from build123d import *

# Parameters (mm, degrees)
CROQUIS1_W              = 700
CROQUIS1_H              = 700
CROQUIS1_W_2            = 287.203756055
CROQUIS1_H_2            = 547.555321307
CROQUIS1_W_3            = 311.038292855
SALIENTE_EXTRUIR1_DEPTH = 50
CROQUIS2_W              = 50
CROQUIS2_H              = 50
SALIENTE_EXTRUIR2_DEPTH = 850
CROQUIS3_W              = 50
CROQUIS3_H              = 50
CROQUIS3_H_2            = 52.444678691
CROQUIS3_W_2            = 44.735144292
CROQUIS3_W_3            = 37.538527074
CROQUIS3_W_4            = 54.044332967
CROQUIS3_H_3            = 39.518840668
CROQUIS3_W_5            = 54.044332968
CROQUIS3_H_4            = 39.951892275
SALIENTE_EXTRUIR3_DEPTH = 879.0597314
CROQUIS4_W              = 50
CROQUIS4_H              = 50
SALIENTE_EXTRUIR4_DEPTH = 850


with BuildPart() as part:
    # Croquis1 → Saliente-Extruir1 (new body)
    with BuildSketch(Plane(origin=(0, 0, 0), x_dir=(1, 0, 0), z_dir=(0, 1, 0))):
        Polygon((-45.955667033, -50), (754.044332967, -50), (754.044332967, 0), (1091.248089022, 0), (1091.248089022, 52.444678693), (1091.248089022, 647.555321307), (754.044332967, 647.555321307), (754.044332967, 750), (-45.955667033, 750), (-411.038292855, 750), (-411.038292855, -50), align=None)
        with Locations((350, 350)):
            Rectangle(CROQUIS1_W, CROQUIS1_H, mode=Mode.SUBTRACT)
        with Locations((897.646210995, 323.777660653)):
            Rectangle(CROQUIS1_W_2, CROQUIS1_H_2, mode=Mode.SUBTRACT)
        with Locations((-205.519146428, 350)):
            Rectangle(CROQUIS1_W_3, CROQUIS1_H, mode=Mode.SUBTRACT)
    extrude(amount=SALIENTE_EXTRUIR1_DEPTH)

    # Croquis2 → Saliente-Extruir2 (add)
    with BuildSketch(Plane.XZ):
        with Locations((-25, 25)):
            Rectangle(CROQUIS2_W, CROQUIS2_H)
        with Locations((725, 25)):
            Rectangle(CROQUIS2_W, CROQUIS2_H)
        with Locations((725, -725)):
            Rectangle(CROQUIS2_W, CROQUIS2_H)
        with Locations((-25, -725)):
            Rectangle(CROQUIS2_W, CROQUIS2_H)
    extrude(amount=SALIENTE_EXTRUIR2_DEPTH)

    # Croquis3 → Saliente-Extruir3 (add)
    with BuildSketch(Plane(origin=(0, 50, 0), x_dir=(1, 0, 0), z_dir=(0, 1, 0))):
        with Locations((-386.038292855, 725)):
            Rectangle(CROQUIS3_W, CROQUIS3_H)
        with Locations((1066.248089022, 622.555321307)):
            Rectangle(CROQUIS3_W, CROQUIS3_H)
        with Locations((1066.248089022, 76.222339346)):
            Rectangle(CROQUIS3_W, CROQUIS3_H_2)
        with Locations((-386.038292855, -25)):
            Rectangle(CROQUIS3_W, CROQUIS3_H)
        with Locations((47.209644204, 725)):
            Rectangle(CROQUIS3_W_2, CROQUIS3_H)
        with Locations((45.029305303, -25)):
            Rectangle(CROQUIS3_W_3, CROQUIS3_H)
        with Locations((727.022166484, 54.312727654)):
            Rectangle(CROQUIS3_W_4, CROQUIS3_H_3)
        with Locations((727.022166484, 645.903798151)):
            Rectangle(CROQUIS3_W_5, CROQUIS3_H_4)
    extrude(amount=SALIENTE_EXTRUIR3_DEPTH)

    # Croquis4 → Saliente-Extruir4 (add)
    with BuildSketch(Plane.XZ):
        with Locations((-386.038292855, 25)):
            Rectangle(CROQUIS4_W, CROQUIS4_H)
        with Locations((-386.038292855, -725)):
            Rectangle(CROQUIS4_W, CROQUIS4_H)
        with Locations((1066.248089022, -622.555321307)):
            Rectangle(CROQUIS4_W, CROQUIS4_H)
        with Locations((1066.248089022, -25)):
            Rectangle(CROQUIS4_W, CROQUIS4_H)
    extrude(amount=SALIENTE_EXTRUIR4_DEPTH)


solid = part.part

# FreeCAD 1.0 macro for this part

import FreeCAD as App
import Part
import Sketcher
from FreeCAD import Vector
Q = App.Units.Quantity

doc = App.newDocument("Part")
body = doc.addObject("PartDesign::Body", "Body")

# Sketch on XZ plane
sketch1 = doc.addObject("Sketcher::SketchObject", "Sketch")
body.addObject(sketch1)
sketch1.AttachmentSupport = (doc.XZ_Plane, [""])
sketch1.MapMode = "FlatFace"
sketch1.addGeometry([
    Part.LineSegment(Vector(754, 50, 0), Vector(754, 0, 0)),  # 0
    Part.LineSegment(Vector(754, 0, 0), Vector(1091, 0, 0)),  # 1
    Part.LineSegment(Vector(1091, 0, 0), Vector(1091, -648, 0)),  # 2
    Part.LineSegment(Vector(1091, -648, 0), Vector(754, -648, 0)),  # 3
    Part.LineSegment(Vector(754, -648, 0), Vector(754, -750, 0)),  # 4
    Part.LineSegment(Vector(754, -750, 0), Vector(-411, -750, 0)),  # 5
    Part.LineSegment(Vector(-411, -750, 0), Vector(-411, 50, 0)),  # 6
    Part.LineSegment(Vector(-411, 50, 0), Vector(754, 50, 0)),  # 7
    Part.LineSegment(Vector(1041, -50, 0), Vector(754, -50, 0)),  # 8
    Part.LineSegment(Vector(754, -50, 0), Vector(754, -598, 0)),  # 9
    Part.LineSegment(Vector(754, -598, 0), Vector(1041, -598, 0)),  # 10
    Part.LineSegment(Vector(1041, -598, 0), Vector(1041, -50, 0)),  # 11
    Part.LineSegment(Vector(-50, 0, 0), Vector(-361, 0, 0)),  # 12
    Part.LineSegment(Vector(-361, 0, 0), Vector(-361, -700, 0)),  # 13
    Part.LineSegment(Vector(-361, -700, 0), Vector(-50, -700, 0)),  # 14
    Part.LineSegment(Vector(-50, -700, 0), Vector(-50, 0, 0)),  # 15
    Part.LineSegment(Vector(700, 0, 0), Vector(0, 0, 0)),  # 16
    Part.LineSegment(Vector(0, 0, 0), Vector(0, -700, 0)),  # 17
    Part.LineSegment(Vector(0, -700, 0), Vector(700, -700, 0)),  # 18
    Part.LineSegment(Vector(700, -700, 0), Vector(700, 0, 0)),  # 19
], False)
sketch1.addConstraint([
    Sketcher.Constraint("Coincident", 0, 2, 1, 1),
    Sketcher.Constraint("Coincident", 1, 2, 2, 1),
    Sketcher.Constraint("Coincident", 2, 2, 3, 1),
    Sketcher.Constraint("Coincident", 3, 2, 4, 1),
    Sketcher.Constraint("Coincident", 4, 2, 5, 1),
    Sketcher.Constraint("Coincident", 5, 2, 6, 1),
    Sketcher.Constraint("Coincident", 6, 2, 7, 1),
    Sketcher.Constraint("Coincident", 7, 2, 0, 1),
    Sketcher.Constraint("Coincident", 8, 2, 9, 1),
    Sketcher.Constraint("Coincident", 9, 2, 10, 1),
    Sketcher.Constraint("Coincident", 10, 2, 11, 1),
    Sketcher.Constraint("Coincident", 11, 2, 8, 1),
    Sketcher.Constraint("Coincident", 12, 2, 13, 1),
    Sketcher.Constraint("Coincident", 13, 2, 14, 1),
    Sketcher.Constraint("Coincident", 14, 2, 15, 1),
    Sketcher.Constraint("Coincident", 15, 2, 12, 1),
    Sketcher.Constraint("Coincident", 16, 2, 17, 1),
    Sketcher.Constraint("Coincident", 17, 2, 18, 1),
    Sketcher.Constraint("Coincident", 18, 2, 19, 1),
    Sketcher.Constraint("Coincident", 19, 2, 16, 1),
    Sketcher.Constraint("Vertical", 0),
    Sketcher.Constraint("Horizontal", 1),
    Sketcher.Constraint("Vertical", 2),
    Sketcher.Constraint("Horizontal", 3),
    Sketcher.Constraint("Vertical", 4),
    Sketcher.Constraint("Horizontal", 5),
    Sketcher.Constraint("Vertical", 6),
    Sketcher.Constraint("Horizontal", 7),
    Sketcher.Constraint("Horizontal", 8),
    Sketcher.Constraint("Vertical", 9),
    Sketcher.Constraint("Horizontal", 10),
    Sketcher.Constraint("Vertical", 11),
    Sketcher.Constraint("Horizontal", 12),
    Sketcher.Constraint("Vertical", 13),
    Sketcher.Constraint("Horizontal", 14),
    Sketcher.Constraint("Vertical", 15),
    Sketcher.Constraint("Horizontal", 16),
    Sketcher.Constraint("Vertical", 17),
    Sketcher.Constraint("Horizontal", 18),
    Sketcher.Constraint("Vertical", 19),
    Sketcher.Constraint("Coincident", 16, 2, -1, 1),
    Sketcher.Constraint("Symmetric", 7, 2, 8, 2, -1),
    Sketcher.Constraint("PointOnObject", 0, 2, -1),
    Sketcher.Constraint("PointOnObject", 12, 2, -1),
    Sketcher.Constraint("Horizontal", 14, 2, 17, 2),
    Sketcher.Constraint("Vertical", 0, 2, 3, 2),
    Sketcher.Constraint("Equal", 18, 13),
    Sketcher.Constraint("DistanceX", 16, 2, 16, 1, Q("700 mm")),
    Sketcher.Constraint("DistanceY", 0, 2, 0, 1, Q("50 mm")),
    Sketcher.Constraint("DistanceY", 6, 1, 6, 2, Q("800 mm")),
    Sketcher.Constraint("DistanceX", 14, 2, -1, 1, Q("50 mm")),
    Sketcher.Constraint("DistanceY", 3, 2, 9, 2, Q("50 mm")),
    Sketcher.Constraint("DistanceX", 10, 2, 2, 2, Q("50 mm")),
    Sketcher.Constraint("DistanceX", 6, 2, 12, 2, Q("50 mm")),
    Sketcher.Constraint("DistanceY", 2, 2, 2, 1, Q("647.555321 mm")),
    Sketcher.Constraint("DistanceX", 1, 1, 1, 2, Q("337.203756 mm")),
    Sketcher.Constraint("DistanceX", 5, 2, 5, 1, Q("1165.082626 mm")),
    Sketcher.Constraint("DistanceX", 12, 2, 12, 1, Q("311.038293 mm")),
])
pad1 = doc.addObject("PartDesign::Pad", "Pad")
body.addObject(pad1)
pad1.Profile = sketch1
pad1.Length = 50
pad1.Reversed = True

# Sketch on XZ plane
sketch2 = doc.addObject("Sketcher::SketchObject", "Sketch001")
body.addObject(sketch2)
sketch2.AttachmentSupport = (doc.XZ_Plane, [""])
sketch2.MapMode = "FlatFace"
sketch2.addGeometry([
    Part.LineSegment(Vector(-50, 50, 0), Vector(-50, 0, 0)),  # 0
    Part.LineSegment(Vector(-50, 0, 0), Vector(0, 0, 0)),  # 1
    Part.LineSegment(Vector(0, 0, 0), Vector(0, 50, 0)),  # 2
    Part.LineSegment(Vector(0, 50, 0), Vector(-50, 50, 0)),  # 3
    Part.LineSegment(Vector(700, 50, 0), Vector(700, 0, 0)),  # 4
    Part.LineSegment(Vector(700, 0, 0), Vector(750, 0, 0)),  # 5
    Part.LineSegment(Vector(750, 0, 0), Vector(750, 50, 0)),  # 6
    Part.LineSegment(Vector(750, 50, 0), Vector(700, 50, 0)),  # 7
    Part.LineSegment(Vector(700, -700, 0), Vector(700, -750, 0)),  # 8
    Part.LineSegment(Vector(700, -750, 0), Vector(750, -750, 0)),  # 9
    Part.LineSegment(Vector(750, -750, 0), Vector(750, -700, 0)),  # 10
    Part.LineSegment(Vector(750, -700, 0), Vector(700, -700, 0)),  # 11
    Part.LineSegment(Vector(-50, -700, 0), Vector(-50, -750, 0)),  # 12
    Part.LineSegment(Vector(-50, -750, 0), Vector(0, -750, 0)),  # 13
    Part.LineSegment(Vector(0, -750, 0), Vector(0, -700, 0)),  # 14
    Part.LineSegment(Vector(0, -700, 0), Vector(-50, -700, 0)),  # 15
], False)
sketch2.addConstraint([
    Sketcher.Constraint("Coincident", 0, 2, 1, 1),
    Sketcher.Constraint("Coincident", 1, 2, 2, 1),
    Sketcher.Constraint("Coincident", 2, 2, 3, 1),
    Sketcher.Constraint("Coincident", 3, 2, 0, 1),
    Sketcher.Constraint("Coincident", 4, 2, 5, 1),
    Sketcher.Constraint("Coincident", 5, 2, 6, 1),
    Sketcher.Constraint("Coincident", 6, 2, 7, 1),
    Sketcher.Constraint("Coincident", 7, 2, 4, 1),
    Sketcher.Constraint("Coincident", 8, 2, 9, 1),
    Sketcher.Constraint("Coincident", 9, 2, 10, 1),
    Sketcher.Constraint("Coincident", 10, 2, 11, 1),
    Sketcher.Constraint("Coincident", 11, 2, 8, 1),
    Sketcher.Constraint("Coincident", 12, 2, 13, 1),
    Sketcher.Constraint("Coincident", 13, 2, 14, 1),
    Sketcher.Constraint("Coincident", 14, 2, 15, 1),
    Sketcher.Constraint("Coincident", 15, 2, 12, 1),
    Sketcher.Constraint("Vertical", 0),
    Sketcher.Constraint("Horizontal", 1),
    Sketcher.Constraint("Vertical", 2),
    Sketcher.Constraint("Horizontal", 3),
    Sketcher.Constraint("Vertical", 4),
    Sketcher.Constraint("Horizontal", 5),
    Sketcher.Constraint("Vertical", 6),
    Sketcher.Constraint("Horizontal", 7),
    Sketcher.Constraint("Vertical", 8),
    Sketcher.Constraint("Horizontal", 9),
    Sketcher.Constraint("Vertical", 10),
    Sketcher.Constraint("Horizontal", 11),
    Sketcher.Constraint("Vertical", 12),
    Sketcher.Constraint("Horizontal", 13),
    Sketcher.Constraint("Vertical", 14),
    Sketcher.Constraint("Horizontal", 15),
    Sketcher.Constraint("Coincident", 1, 2, -1, 1),
    Sketcher.Constraint("PointOnObject", 4, 2, -1),
    Sketcher.Constraint("PointOnObject", 13, 2, -2),
    Sketcher.Constraint("Horizontal", 3, 2, 6, 2),
    Sketcher.Constraint("Horizontal", 9, 2, 12, 2),
    Sketcher.Constraint("Horizontal", 11, 2, 14, 2),
    Sketcher.Constraint("Vertical", 7, 2, 8, 2),
    Sketcher.Constraint("Vertical", 6, 2, 9, 2),
    Sketcher.Constraint("Vertical", 3, 2, 12, 2),
    Sketcher.Constraint("Equal", 3, 5),
    Sketcher.Constraint("Equal", 15, 0),
    Sketcher.Constraint("Equal", 6, 8),
    Sketcher.Constraint("DistanceX", 1, 1, 1, 2, Q("50 mm")),
    Sketcher.Constraint("DistanceX", -1, 1, 4, 2, Q("700 mm")),
    Sketcher.Constraint("DistanceY", 8, 2, -1, 1, Q("750 mm")),
])
pad2 = doc.addObject("PartDesign::Pad", "Pad001")
body.addObject(pad2)
pad2.Profile = sketch2
pad2.Length = 850

# Sketch on XZ plane
sketch3 = doc.addObject("Sketcher::SketchObject", "Sketch002")
body.addObject(sketch3)
sketch3.AttachmentSupport = (doc.XZ_Plane, [""])
sketch3.MapMode = "FlatFace"
sketch3.AttachmentOffset = App.Placement(Vector(0, 0, -50), App.Rotation())
sketch3.addGeometry([
    Part.LineSegment(Vector(-411, -750, 0), Vector(-411, -700, 0)),  # 0
    Part.LineSegment(Vector(-411, -700, 0), Vector(-361, -700, 0)),  # 1
    Part.LineSegment(Vector(-361, -700, 0), Vector(-361, -750, 0)),  # 2
    Part.LineSegment(Vector(-361, -750, 0), Vector(-411, -750, 0)),  # 3
    Part.LineSegment(Vector(1041, -648, 0), Vector(1041, -598, 0)),  # 4
    Part.LineSegment(Vector(1041, -598, 0), Vector(1091, -598, 0)),  # 5
    Part.LineSegment(Vector(1091, -598, 0), Vector(1091, -648, 0)),  # 6
    Part.LineSegment(Vector(1091, -648, 0), Vector(1041, -648, 0)),  # 7
    Part.LineSegment(Vector(1041, -102, 0), Vector(1041, -50, 0)),  # 8
    Part.LineSegment(Vector(1041, -50, 0), Vector(1091, -50, 0)),  # 9
    Part.LineSegment(Vector(1091, -50, 0), Vector(1091, -102, 0)),  # 10
    Part.LineSegment(Vector(1091, -102, 0), Vector(1041, -102, 0)),  # 11
    Part.LineSegment(Vector(-411, 0, 0), Vector(-411, 50, 0)),  # 12
    Part.LineSegment(Vector(-411, 50, 0), Vector(-361, 50, 0)),  # 13
    Part.LineSegment(Vector(-361, 50, 0), Vector(-361, 0, 0)),  # 14
    Part.LineSegment(Vector(-361, 0, 0), Vector(-411, 0, 0)),  # 15
    Part.LineSegment(Vector(25, -750, 0), Vector(25, -700, 0)),  # 16
    Part.LineSegment(Vector(25, -700, 0), Vector(70, -700, 0)),  # 17
    Part.LineSegment(Vector(70, -700, 0), Vector(70, -750, 0)),  # 18
    Part.LineSegment(Vector(70, -750, 0), Vector(25, -750, 0)),  # 19
    Part.LineSegment(Vector(26, 0, 0), Vector(26, 50, 0)),  # 20
    Part.LineSegment(Vector(26, 50, 0), Vector(64, 50, 0)),  # 21
    Part.LineSegment(Vector(64, 50, 0), Vector(64, 0, 0)),  # 22
    Part.LineSegment(Vector(64, 0, 0), Vector(26, 0, 0)),  # 23
    Part.LineSegment(Vector(700, -74, 0), Vector(700, -35, 0)),  # 24
    Part.LineSegment(Vector(700, -35, 0), Vector(754, -35, 0)),  # 25
    Part.LineSegment(Vector(754, -35, 0), Vector(754, -74, 0)),  # 26
    Part.LineSegment(Vector(754, -74, 0), Vector(700, -74, 0)),  # 27
    Part.LineSegment(Vector(700, -666, 0), Vector(700, -626, 0)),  # 28
    Part.LineSegment(Vector(700, -626, 0), Vector(754, -626, 0)),  # 29
    Part.LineSegment(Vector(754, -626, 0), Vector(754, -666, 0)),  # 30
    Part.LineSegment(Vector(754, -666, 0), Vector(700, -666, 0)),  # 31
], False)
sketch3.addConstraint([
    Sketcher.Constraint("Coincident", 0, 2, 1, 1),
    Sketcher.Constraint("Coincident", 1, 2, 2, 1),
    Sketcher.Constraint("Coincident", 2, 2, 3, 1),
    Sketcher.Constraint("Coincident", 3, 2, 0, 1),
    Sketcher.Constraint("Coincident", 4, 2, 5, 1),
    Sketcher.Constraint("Coincident", 5, 2, 6, 1),
    Sketcher.Constraint("Coincident", 6, 2, 7, 1),
    Sketcher.Constraint("Coincident", 7, 2, 4, 1),
    Sketcher.Constraint("Coincident", 8, 2, 9, 1),
    Sketcher.Constraint("Coincident", 9, 2, 10, 1),
    Sketcher.Constraint("Coincident", 10, 2, 11, 1),
    Sketcher.Constraint("Coincident", 11, 2, 8, 1),
    Sketcher.Constraint("Coincident", 12, 2, 13, 1),
    Sketcher.Constraint("Coincident", 13, 2, 14, 1),
    Sketcher.Constraint("Coincident", 14, 2, 15, 1),
    Sketcher.Constraint("Coincident", 15, 2, 12, 1),
    Sketcher.Constraint("Coincident", 16, 2, 17, 1),
    Sketcher.Constraint("Coincident", 17, 2, 18, 1),
    Sketcher.Constraint("Coincident", 18, 2, 19, 1),
    Sketcher.Constraint("Coincident", 19, 2, 16, 1),
    Sketcher.Constraint("Coincident", 20, 2, 21, 1),
    Sketcher.Constraint("Coincident", 21, 2, 22, 1),
    Sketcher.Constraint("Coincident", 22, 2, 23, 1),
    Sketcher.Constraint("Coincident", 23, 2, 20, 1),
    Sketcher.Constraint("Coincident", 24, 2, 25, 1),
    Sketcher.Constraint("Coincident", 25, 2, 26, 1),
    Sketcher.Constraint("Coincident", 26, 2, 27, 1),
    Sketcher.Constraint("Coincident", 27, 2, 24, 1),
    Sketcher.Constraint("Coincident", 28, 2, 29, 1),
    Sketcher.Constraint("Coincident", 29, 2, 30, 1),
    Sketcher.Constraint("Coincident", 30, 2, 31, 1),
    Sketcher.Constraint("Coincident", 31, 2, 28, 1),
    Sketcher.Constraint("Vertical", 0),
    Sketcher.Constraint("Horizontal", 1),
    Sketcher.Constraint("Vertical", 2),
    Sketcher.Constraint("Horizontal", 3),
    Sketcher.Constraint("Vertical", 4),
    Sketcher.Constraint("Horizontal", 5),
    Sketcher.Constraint("Vertical", 6),
    Sketcher.Constraint("Horizontal", 7),
    Sketcher.Constraint("Vertical", 8),
    Sketcher.Constraint("Horizontal", 9),
    Sketcher.Constraint("Vertical", 10),
    Sketcher.Constraint("Horizontal", 11),
    Sketcher.Constraint("Vertical", 12),
    Sketcher.Constraint("Horizontal", 13),
    Sketcher.Constraint("Vertical", 14),
    Sketcher.Constraint("Horizontal", 15),
    Sketcher.Constraint("Vertical", 16),
    Sketcher.Constraint("Horizontal", 17),
    Sketcher.Constraint("Vertical", 18),
    Sketcher.Constraint("Horizontal", 19),
    Sketcher.Constraint("Vertical", 20),
    Sketcher.Constraint("Horizontal", 21),
    Sketcher.Constraint("Vertical", 22),
    Sketcher.Constraint("Horizontal", 23),
    Sketcher.Constraint("Vertical", 24),
    Sketcher.Constraint("Horizontal", 25),
    Sketcher.Constraint("Vertical", 26),
    Sketcher.Constraint("Horizontal", 27),
    Sketcher.Constraint("Vertical", 28),
    Sketcher.Constraint("Horizontal", 29),
    Sketcher.Constraint("Vertical", 30),
    Sketcher.Constraint("Horizontal", 31),
    Sketcher.Constraint("PointOnObject", 14, 2, -1),
    Sketcher.Constraint("PointOnObject", 22, 2, -1),
    Sketcher.Constraint("Horizontal", 1, 2, 16, 2),
    Sketcher.Constraint("Horizontal", 3, 2, 18, 2),
    Sketcher.Constraint("Horizontal", 13, 2, 20, 2),
    Sketcher.Constraint("Vertical", 7, 2, 8, 2),
    Sketcher.Constraint("Vertical", 6, 2, 9, 2),
    Sketcher.Constraint("Vertical", 3, 2, 12, 2),
    Sketcher.Constraint("Vertical", 2, 2, 13, 2),
    Sketcher.Constraint("Vertical", 27, 2, 28, 2),
    Sketcher.Constraint("Vertical", 26, 2, 29, 2),
    Sketcher.Constraint("Equal", 3, 5),
    Sketcher.Constraint("Equal", 15, 0),
    Sketcher.Constraint("Equal", 2, 4),
    Sketcher.Constraint("Equal", 6, 12),
    Sketcher.Constraint("DistanceX", 1, 1, 1, 2, Q("50 mm")),
    Sketcher.Constraint("DistanceY", 0, 2, -1, 1, Q("700 mm")),
    Sketcher.Constraint("DistanceY", 8, 2, -1, 1, Q("50 mm")),
    Sketcher.Constraint("DistanceX", -1, 1, 24, 2, Q("700 mm")),
    Sketcher.Constraint("DistanceY", 8, 1, 8, 2, Q("52.444679 mm")),
    Sketcher.Constraint("DistanceY", 24, 1, 24, 2, Q("39.518841 mm")),
    Sketcher.Constraint("DistanceX", 17, 1, 17, 2, Q("44.735144 mm")),
    Sketcher.Constraint("DistanceX", 21, 1, 21, 2, Q("37.538527 mm")),
    Sketcher.Constraint("DistanceX", 25, 1, 25, 2, Q("54.044333 mm")),
    Sketcher.Constraint("DistanceY", 28, 1, 28, 2, Q("39.951892 mm")),
    Sketcher.Constraint("DistanceX", -1, 1, 4, 2, Q("1041.248089 mm")),
    Sketcher.Constraint("DistanceY", 4, 2, -1, 1, Q("597.555321 mm")),
    Sketcher.Constraint("DistanceX", -1, 1, 20, 2, Q("26.260042 mm")),
    Sketcher.Constraint("DistanceX", 1, 2, 4, 2, Q("1402.286382 mm")),
    Sketcher.Constraint("DistanceX", 1, 2, 17, 2, Q("430.615509 mm")),
    Sketcher.Constraint("DistanceY", 11, 2, 24, 2, Q("67.891371 mm")),
    Sketcher.Constraint("DistanceY", 7, 2, 28, 2, Q("21.627469 mm")),
])
pad3 = doc.addObject("PartDesign::Pad", "Pad002")
body.addObject(pad3)
pad3.Profile = sketch3
pad3.Length = 879.059731
pad3.Reversed = True

# Sketch on XZ plane
sketch4 = doc.addObject("Sketcher::SketchObject", "Sketch003")
body.addObject(sketch4)
sketch4.AttachmentSupport = (doc.XZ_Plane, [""])
sketch4.MapMode = "FlatFace"
sketch4.addGeometry([
    Part.LineSegment(Vector(-411, 50, 0), Vector(-411, 0, 0)),  # 0
    Part.LineSegment(Vector(-411, 0, 0), Vector(-361, 0, 0)),  # 1
    Part.LineSegment(Vector(-361, 0, 0), Vector(-361, 50, 0)),  # 2
    Part.LineSegment(Vector(-361, 50, 0), Vector(-411, 50, 0)),  # 3
    Part.LineSegment(Vector(-411, -700, 0), Vector(-411, -750, 0)),  # 4
    Part.LineSegment(Vector(-411, -750, 0), Vector(-361, -750, 0)),  # 5
    Part.LineSegment(Vector(-361, -750, 0), Vector(-361, -700, 0)),  # 6
    Part.LineSegment(Vector(-361, -700, 0), Vector(-411, -700, 0)),  # 7
    Part.LineSegment(Vector(1041, -598, 0), Vector(1041, -648, 0)),  # 8
    Part.LineSegment(Vector(1041, -648, 0), Vector(1091, -648, 0)),  # 9
    Part.LineSegment(Vector(1091, -648, 0), Vector(1091, -598, 0)),  # 10
    Part.LineSegment(Vector(1091, -598, 0), Vector(1041, -598, 0)),  # 11
    Part.LineSegment(Vector(1041, 0, 0), Vector(1041, -50, 0)),  # 12
    Part.LineSegment(Vector(1041, -50, 0), Vector(1091, -50, 0)),  # 13
    Part.LineSegment(Vector(1091, -50, 0), Vector(1091, 0, 0)),  # 14
    Part.LineSegment(Vector(1091, 0, 0), Vector(1041, 0, 0)),  # 15
], False)
sketch4.addConstraint([
    Sketcher.Constraint("Coincident", 0, 2, 1, 1),
    Sketcher.Constraint("Coincident", 1, 2, 2, 1),
    Sketcher.Constraint("Coincident", 2, 2, 3, 1),
    Sketcher.Constraint("Coincident", 3, 2, 0, 1),
    Sketcher.Constraint("Coincident", 4, 2, 5, 1),
    Sketcher.Constraint("Coincident", 5, 2, 6, 1),
    Sketcher.Constraint("Coincident", 6, 2, 7, 1),
    Sketcher.Constraint("Coincident", 7, 2, 4, 1),
    Sketcher.Constraint("Coincident", 8, 2, 9, 1),
    Sketcher.Constraint("Coincident", 9, 2, 10, 1),
    Sketcher.Constraint("Coincident", 10, 2, 11, 1),
    Sketcher.Constraint("Coincident", 11, 2, 8, 1),
    Sketcher.Constraint("Coincident", 12, 2, 13, 1),
    Sketcher.Constraint("Coincident", 13, 2, 14, 1),
    Sketcher.Constraint("Coincident", 14, 2, 15, 1),
    Sketcher.Constraint("Coincident", 15, 2, 12, 1),
    Sketcher.Constraint("Vertical", 0),
    Sketcher.Constraint("Horizontal", 1),
    Sketcher.Constraint("Vertical", 2),
    Sketcher.Constraint("Horizontal", 3),
    Sketcher.Constraint("Vertical", 4),
    Sketcher.Constraint("Horizontal", 5),
    Sketcher.Constraint("Vertical", 6),
    Sketcher.Constraint("Horizontal", 7),
    Sketcher.Constraint("Vertical", 8),
    Sketcher.Constraint("Horizontal", 9),
    Sketcher.Constraint("Vertical", 10),
    Sketcher.Constraint("Horizontal", 11),
    Sketcher.Constraint("Vertical", 12),
    Sketcher.Constraint("Horizontal", 13),
    Sketcher.Constraint("Vertical", 14),
    Sketcher.Constraint("Horizontal", 15),
    Sketcher.Constraint("PointOnObject", 0, 2, -1),
    Sketcher.Constraint("PointOnObject", 14, 2, -1),
    Sketcher.Constraint("Vertical", 3, 2, 4, 2),
    Sketcher.Constraint("Vertical", 2, 2, 5, 2),
    Sketcher.Constraint("Vertical", 11, 2, 12, 2),
    Sketcher.Constraint("Vertical", 10, 2, 13, 2),
    Sketcher.Constraint("Equal", 7, 9),
    Sketcher.Constraint("Equal", 15, 0),
    Sketcher.Constraint("Equal", 2, 4),
    Sketcher.Constraint("Equal", 6, 8),
    Sketcher.Constraint("Equal", 10, 12),
    Sketcher.Constraint("DistanceX", 1, 1, 1, 2, Q("50 mm")),
    Sketcher.Constraint("DistanceY", 4, 2, -1, 1, Q("750 mm")),
    Sketcher.Constraint("DistanceX", -1, 1, 8, 2, Q("1041.248089 mm")),
    Sketcher.Constraint("DistanceY", 8, 2, -1, 1, Q("647.555321 mm")),
    Sketcher.Constraint("DistanceX", 6, 2, 8, 2, Q("1402.286382 mm")),
])
pad4 = doc.addObject("PartDesign::Pad", "Pad003")
body.addObject(pad4)
pad4.Profile = sketch4
pad4.Length = 850

doc.recompute()
